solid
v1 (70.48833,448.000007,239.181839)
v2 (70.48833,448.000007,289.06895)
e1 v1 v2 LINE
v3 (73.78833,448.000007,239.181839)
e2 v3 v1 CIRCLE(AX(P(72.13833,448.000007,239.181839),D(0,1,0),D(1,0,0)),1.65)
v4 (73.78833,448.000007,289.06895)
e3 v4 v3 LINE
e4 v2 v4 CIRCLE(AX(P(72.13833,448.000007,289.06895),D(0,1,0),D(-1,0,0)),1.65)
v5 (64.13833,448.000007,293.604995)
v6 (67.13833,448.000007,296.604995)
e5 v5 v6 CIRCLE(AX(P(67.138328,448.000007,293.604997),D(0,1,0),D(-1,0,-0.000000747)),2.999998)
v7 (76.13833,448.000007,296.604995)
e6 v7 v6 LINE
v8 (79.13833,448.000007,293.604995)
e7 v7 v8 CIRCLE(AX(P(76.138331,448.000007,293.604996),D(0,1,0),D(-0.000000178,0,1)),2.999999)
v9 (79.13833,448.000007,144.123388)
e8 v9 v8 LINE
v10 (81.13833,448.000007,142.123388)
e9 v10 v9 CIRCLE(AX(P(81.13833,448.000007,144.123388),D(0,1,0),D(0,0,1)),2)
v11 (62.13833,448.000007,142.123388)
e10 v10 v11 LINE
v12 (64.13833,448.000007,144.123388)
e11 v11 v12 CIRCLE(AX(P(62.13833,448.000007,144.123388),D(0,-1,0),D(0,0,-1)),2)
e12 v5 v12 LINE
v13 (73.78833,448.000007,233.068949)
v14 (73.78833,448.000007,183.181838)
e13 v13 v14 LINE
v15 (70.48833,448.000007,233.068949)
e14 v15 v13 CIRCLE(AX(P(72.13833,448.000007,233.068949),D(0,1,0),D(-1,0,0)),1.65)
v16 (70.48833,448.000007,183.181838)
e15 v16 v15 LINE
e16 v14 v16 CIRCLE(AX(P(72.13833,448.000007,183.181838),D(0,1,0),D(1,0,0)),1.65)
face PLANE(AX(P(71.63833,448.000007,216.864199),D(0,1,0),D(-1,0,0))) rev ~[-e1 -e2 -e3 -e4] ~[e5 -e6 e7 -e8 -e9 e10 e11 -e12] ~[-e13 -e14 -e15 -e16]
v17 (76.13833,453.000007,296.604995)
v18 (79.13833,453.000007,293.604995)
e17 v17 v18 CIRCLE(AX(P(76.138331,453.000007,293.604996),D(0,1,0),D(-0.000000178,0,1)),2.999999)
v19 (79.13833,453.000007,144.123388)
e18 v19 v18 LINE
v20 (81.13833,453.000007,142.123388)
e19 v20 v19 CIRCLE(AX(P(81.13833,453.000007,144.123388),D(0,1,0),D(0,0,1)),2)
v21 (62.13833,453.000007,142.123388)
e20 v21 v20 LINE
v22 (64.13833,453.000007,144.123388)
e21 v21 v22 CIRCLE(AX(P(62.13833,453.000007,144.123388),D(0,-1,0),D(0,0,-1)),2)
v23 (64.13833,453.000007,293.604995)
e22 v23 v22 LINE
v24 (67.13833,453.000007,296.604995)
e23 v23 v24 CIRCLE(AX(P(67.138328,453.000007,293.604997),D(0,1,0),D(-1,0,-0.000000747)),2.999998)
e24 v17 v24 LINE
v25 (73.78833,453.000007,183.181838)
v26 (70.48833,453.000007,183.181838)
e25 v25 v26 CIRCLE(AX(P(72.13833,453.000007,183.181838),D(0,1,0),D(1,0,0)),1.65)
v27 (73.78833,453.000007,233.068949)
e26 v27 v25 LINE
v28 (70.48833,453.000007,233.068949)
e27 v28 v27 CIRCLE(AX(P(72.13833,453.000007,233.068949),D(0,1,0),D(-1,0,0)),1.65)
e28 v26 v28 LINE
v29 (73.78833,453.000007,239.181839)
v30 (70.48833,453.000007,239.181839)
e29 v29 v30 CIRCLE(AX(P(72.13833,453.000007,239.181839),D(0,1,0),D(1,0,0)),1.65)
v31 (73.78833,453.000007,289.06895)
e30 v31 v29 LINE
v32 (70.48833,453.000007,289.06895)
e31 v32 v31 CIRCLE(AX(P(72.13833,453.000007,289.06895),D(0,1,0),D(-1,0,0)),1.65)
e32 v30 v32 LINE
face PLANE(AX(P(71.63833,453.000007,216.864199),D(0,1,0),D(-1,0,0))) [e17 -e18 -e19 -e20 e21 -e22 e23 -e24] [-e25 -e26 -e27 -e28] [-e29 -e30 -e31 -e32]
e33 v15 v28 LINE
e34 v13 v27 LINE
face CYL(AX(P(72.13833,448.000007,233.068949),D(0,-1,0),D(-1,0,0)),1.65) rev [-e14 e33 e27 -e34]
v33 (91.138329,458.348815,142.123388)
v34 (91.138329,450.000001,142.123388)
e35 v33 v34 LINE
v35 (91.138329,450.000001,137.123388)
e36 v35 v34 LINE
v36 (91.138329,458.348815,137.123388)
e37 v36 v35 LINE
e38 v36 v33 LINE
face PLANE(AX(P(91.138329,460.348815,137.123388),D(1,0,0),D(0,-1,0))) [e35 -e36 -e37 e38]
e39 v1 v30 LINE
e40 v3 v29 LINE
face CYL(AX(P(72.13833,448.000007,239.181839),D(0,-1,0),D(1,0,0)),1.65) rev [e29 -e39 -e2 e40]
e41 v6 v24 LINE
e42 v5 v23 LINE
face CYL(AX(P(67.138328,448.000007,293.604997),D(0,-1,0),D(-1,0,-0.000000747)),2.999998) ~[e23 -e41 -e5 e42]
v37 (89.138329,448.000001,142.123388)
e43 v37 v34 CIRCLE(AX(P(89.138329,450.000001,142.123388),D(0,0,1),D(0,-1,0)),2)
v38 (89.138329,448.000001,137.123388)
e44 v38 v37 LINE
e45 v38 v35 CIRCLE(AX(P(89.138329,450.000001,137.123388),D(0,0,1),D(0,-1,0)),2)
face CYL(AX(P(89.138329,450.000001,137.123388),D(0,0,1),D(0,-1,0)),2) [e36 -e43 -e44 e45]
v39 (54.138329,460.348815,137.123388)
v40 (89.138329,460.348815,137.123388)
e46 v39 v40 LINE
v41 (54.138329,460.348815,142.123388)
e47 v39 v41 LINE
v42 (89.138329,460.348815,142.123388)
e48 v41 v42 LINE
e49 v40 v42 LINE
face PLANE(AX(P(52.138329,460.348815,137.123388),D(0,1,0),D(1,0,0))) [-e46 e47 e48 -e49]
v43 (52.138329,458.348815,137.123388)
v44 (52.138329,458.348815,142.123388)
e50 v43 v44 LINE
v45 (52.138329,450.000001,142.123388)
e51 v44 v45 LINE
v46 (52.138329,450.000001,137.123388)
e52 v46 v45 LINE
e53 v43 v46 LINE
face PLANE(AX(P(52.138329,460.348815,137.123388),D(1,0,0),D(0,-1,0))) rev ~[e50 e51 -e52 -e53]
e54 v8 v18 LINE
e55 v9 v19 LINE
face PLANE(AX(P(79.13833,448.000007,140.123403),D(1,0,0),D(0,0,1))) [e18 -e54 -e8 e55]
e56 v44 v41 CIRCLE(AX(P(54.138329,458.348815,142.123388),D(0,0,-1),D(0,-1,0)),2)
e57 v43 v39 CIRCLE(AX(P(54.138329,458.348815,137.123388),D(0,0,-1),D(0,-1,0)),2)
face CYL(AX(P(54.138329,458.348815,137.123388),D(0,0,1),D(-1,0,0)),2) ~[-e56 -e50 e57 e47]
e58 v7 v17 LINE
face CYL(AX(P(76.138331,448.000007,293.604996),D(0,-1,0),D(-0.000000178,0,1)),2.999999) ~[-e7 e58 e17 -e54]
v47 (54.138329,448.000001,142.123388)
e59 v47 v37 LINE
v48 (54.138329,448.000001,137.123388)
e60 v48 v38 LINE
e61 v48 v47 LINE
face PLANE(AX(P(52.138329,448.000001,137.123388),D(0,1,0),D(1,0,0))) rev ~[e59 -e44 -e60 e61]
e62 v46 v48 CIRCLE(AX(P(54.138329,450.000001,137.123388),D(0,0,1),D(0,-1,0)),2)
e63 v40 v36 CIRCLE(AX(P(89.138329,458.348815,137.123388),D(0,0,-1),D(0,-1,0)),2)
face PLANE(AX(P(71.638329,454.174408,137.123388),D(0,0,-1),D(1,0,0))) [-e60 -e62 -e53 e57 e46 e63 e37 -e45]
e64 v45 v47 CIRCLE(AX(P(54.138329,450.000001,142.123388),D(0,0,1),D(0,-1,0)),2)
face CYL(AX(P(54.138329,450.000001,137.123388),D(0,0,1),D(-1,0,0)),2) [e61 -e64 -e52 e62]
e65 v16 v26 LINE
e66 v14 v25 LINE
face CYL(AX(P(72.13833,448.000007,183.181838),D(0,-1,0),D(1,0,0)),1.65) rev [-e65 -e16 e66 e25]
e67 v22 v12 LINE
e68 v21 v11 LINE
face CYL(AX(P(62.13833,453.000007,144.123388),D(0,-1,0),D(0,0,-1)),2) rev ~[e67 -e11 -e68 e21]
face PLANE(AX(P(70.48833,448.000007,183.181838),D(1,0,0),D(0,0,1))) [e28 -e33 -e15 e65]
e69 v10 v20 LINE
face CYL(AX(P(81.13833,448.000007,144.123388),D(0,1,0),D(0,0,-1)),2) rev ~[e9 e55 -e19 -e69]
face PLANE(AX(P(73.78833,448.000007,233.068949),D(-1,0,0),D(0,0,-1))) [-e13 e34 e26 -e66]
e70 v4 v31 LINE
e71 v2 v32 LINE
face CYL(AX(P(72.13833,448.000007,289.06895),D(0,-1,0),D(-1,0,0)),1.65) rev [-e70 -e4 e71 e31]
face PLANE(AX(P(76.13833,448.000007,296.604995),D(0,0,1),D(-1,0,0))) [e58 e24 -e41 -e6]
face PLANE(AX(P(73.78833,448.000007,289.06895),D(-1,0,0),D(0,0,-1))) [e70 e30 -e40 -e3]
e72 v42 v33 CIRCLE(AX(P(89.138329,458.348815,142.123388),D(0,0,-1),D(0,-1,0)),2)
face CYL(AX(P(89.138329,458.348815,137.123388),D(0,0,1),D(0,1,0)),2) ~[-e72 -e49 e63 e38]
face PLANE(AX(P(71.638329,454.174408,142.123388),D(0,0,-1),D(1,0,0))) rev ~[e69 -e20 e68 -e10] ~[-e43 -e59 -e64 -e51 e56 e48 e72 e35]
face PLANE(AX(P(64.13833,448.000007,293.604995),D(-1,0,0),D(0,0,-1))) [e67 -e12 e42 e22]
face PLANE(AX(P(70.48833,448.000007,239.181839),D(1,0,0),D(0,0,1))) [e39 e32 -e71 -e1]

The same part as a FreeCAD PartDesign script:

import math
import FreeCAD as App
import Part
import Sketcher


def edges_at(feature, points):
    """Names of the edges that pass closest to the given points."""
    edges = feature.Shape.Edges
    near = lambda p: min(range(len(edges)), key=lambda i: edges[i].distToShape(Part.Vertex(*p))[0])
    return sorted({f"Edge{near(p) + 1}" for p in points})

doc = App.newDocument("Part")
params = doc.addObject("Spreadsheet::Sheet", "Params")
for row, (alias, value) in enumerate([
    ("sketch1_radius", "2.999999 mm"),
    ("sketch1_width", "9 mm"),
    ("sketch1_radius2", "1.65 mm"),
    ("pad1_length", "5 mm"),
    ("sketch2_width", "39 mm"),
    ("pad2_length", "5 mm"),
    ("fillet_radius", "2 mm"),
    ("fillet2_radius", "2 mm"),
], start=1):
    params.set(f"A{row}", alias)
    params.set(f"B{row}", "=" + value)
    params.setAlias(f"B{row}", alias)

body = doc.addObject("PartDesign::Body", "Body")

# Sketch on XZ plane
sketch1 = doc.addObject("Sketcher::SketchObject", "Sketch")
body.addObject(sketch1)
sketch1.AttachmentSupport = (doc.XZ_Plane, [""])
sketch1.MapMode = "FlatFace"
sketch1.AttachmentOffset = App.Placement(App.Vector(0, 0, -448.000007), App.Rotation())
sketch1.addGeometry([
    Part.ArcOfCircle(Part.Circle(App.Vector(76.138331, 293.604996, 0), App.Vector(0, 0, 1), 2.999999), math.radians(-0.00001), math.radians(90.00001)),  # 0
    Part.LineSegment(App.Vector(79.13833, 293.604995, 0), App.Vector(79.13833, 140.123403, 0)),  # 1
    Part.ArcOfCircle(Part.Circle(App.Vector(76.138331, 140.123402, 0), App.Vector(0, 0, 1), 2.999999), math.radians(-90.00001), math.radians(0.00001)),  # 2
    Part.LineSegment(App.Vector(76.13833, 137.123403, 0), App.Vector(67.13833, 137.123403, 0)),  # 3
    Part.ArcOfCircle(Part.Circle(App.Vector(67.138328, 140.123401, 0), App.Vector(0, 0, 1), 2.999998), math.radians(179.999957), math.radians(270.000043)),  # 4
    Part.LineSegment(App.Vector(64.13833, 140.123403, 0), App.Vector(64.13833, 293.604995, 0)),  # 5
    Part.ArcOfCircle(Part.Circle(App.Vector(67.138328, 293.604997, 0), App.Vector(0, 0, 1), 2.999998), math.radians(89.999957), math.radians(180.000043)),  # 6
    Part.LineSegment(App.Vector(67.13833, 296.604995, 0), App.Vector(76.13833, 296.604995, 0)),  # 7
    Part.ArcOfCircle(Part.Circle(App.Vector(72.13833, 233.068949, 0), App.Vector(0, 0, 1), 1.65), math.radians(0), math.radians(180)),  # 8
    Part.LineSegment(App.Vector(70.48833, 233.068949, 0), App.Vector(70.48833, 183.181838, 0)),  # 9
    Part.ArcOfCircle(Part.Circle(App.Vector(72.13833, 183.181838, 0), App.Vector(0, 0, 1), 1.65), math.radians(180), math.radians(360)),  # 10
    Part.LineSegment(App.Vector(73.78833, 183.181838, 0), App.Vector(73.78833, 233.068949, 0)),  # 11
    Part.ArcOfCircle(Part.Circle(App.Vector(72.13833, 289.06895, 0), App.Vector(0, 0, 1), 1.65), math.radians(0), math.radians(180)),  # 12
    Part.LineSegment(App.Vector(70.48833, 289.06895, 0), App.Vector(70.48833, 239.181839, 0)),  # 13
    Part.ArcOfCircle(Part.Circle(App.Vector(72.13833, 239.181839, 0), App.Vector(0, 0, 1), 1.65), math.radians(180), math.radians(360)),  # 14
    Part.LineSegment(App.Vector(73.78833, 239.181839, 0), App.Vector(73.78833, 289.06895, 0)),  # 15
], False)
sketch1.addConstraint([
    Sketcher.Constraint("Tangent", 0, 1, 1, 1),
    Sketcher.Constraint("Tangent", 1, 2, 2, 2),
    Sketcher.Constraint("Tangent", 2, 1, 3, 1),
    Sketcher.Constraint("Tangent", 3, 2, 4, 2),
    Sketcher.Constraint("Tangent", 4, 1, 5, 1),
    Sketcher.Constraint("Tangent", 5, 2, 6, 2),
    Sketcher.Constraint("Tangent", 6, 1, 7, 1),
    Sketcher.Constraint("Tangent", 7, 2, 0, 2),
    Sketcher.Constraint("Tangent", 8, 2, 9, 1),
    Sketcher.Constraint("Tangent", 9, 2, 10, 1),
    Sketcher.Constraint("Tangent", 10, 2, 11, 1),
    Sketcher.Constraint("Tangent", 11, 2, 8, 1),
    Sketcher.Constraint("Tangent", 12, 2, 13, 1),
    Sketcher.Constraint("Tangent", 13, 2, 14, 1),
    Sketcher.Constraint("Tangent", 14, 2, 15, 1),
    Sketcher.Constraint("Tangent", 15, 2, 12, 1),
    Sketcher.Constraint("Vertical", 1),
    Sketcher.Constraint("Horizontal", 3),
    Sketcher.Constraint("Vertical", 5),
    Sketcher.Constraint("Horizontal", 7),
    Sketcher.Constraint("Vertical", 9),
    Sketcher.Constraint("Vertical", 11),
    Sketcher.Constraint("Vertical", 13),
    Sketcher.Constraint("Vertical", 15),
    Sketcher.Constraint("Equal", 0, 2),
    Sketcher.Constraint("Equal", 2, 4),
    Sketcher.Constraint("Equal", 4, 6),
    Sketcher.Constraint("Equal", 10, 12),
    Sketcher.Constraint("Vertical", 10, 3, 12, 3),
    Sketcher.Constraint("Equal", 11, 13),
    Sketcher.Constraint("Radius", 0, 2.999999),
    Sketcher.Constraint("DistanceX", 3, 2, 3, 1, 9.0),
    Sketcher.Constraint("Radius", 8, 1.65),
    Sketcher.Constraint("DistanceX", 8, 3, 0, 3, 4.000001),
    Sketcher.Constraint("DistanceY", 8, 3, 12, 3, 56.000001),
    Sketcher.Constraint("DistanceY", 1, 2, 1, 1, 153.481592),
    Sketcher.Constraint("DistanceY", 9, 2, 9, 1, 49.887111),
    Sketcher.Constraint("DistanceY", -1, 1, 4, 3, 140.123401),
    Sketcher.Constraint("DistanceX", -1, 1, 0, 3, 76.138331),
    Sketcher.Constraint("DistanceY", -1, 1, 8, 3, 233.068949),
])
sketch1.setExpression("Constraints[30]", "Params.sketch1_radius")
sketch1.setExpression("Constraints[31]", "Params.sketch1_width")
sketch1.setExpression("Constraints[32]", "Params.sketch1_radius2")
pad1 = doc.addObject("PartDesign::Pad", "Pad")
body.addObject(pad1)
pad1.Profile = sketch1
pad1.setExpression("Length", "Params.pad1_length")
pad1.Reversed = True

# Sketch on XY plane
sketch2 = doc.addObject("Sketcher::SketchObject", "Sketch001")
body.addObject(sketch2)
sketch2.AttachmentSupport = (doc.XY_Plane, [""])
sketch2.MapMode = "FlatFace"
sketch2.AttachmentOffset = App.Placement(App.Vector(0, 0, 137.123388), App.Rotation())
sketch2.addGeometry([
    Part.LineSegment(App.Vector(52.138329, 448.000001, 0), App.Vector(52.138329, 460.348815, 0)),
    Part.LineSegment(App.Vector(52.138329, 460.348815, 0), App.Vector(91.138329, 460.348815, 0)),
    Part.LineSegment(App.Vector(91.138329, 460.348815, 0), App.Vector(91.138329, 448.000001, 0)),
    Part.LineSegment(App.Vector(91.138329, 448.000001, 0), App.Vector(52.138329, 448.000001, 0)),
], False)
sketch2.addConstraint([
    Sketcher.Constraint("Coincident", 0, 2, 1, 1),
    Sketcher.Constraint("Coincident", 1, 2, 2, 1),
    Sketcher.Constraint("Coincident", 2, 2, 3, 1),
    Sketcher.Constraint("Coincident", 3, 2, 0, 1),
    Sketcher.Constraint("Vertical", 0),
    Sketcher.Constraint("Horizontal", 1),
    Sketcher.Constraint("Vertical", 2),
    Sketcher.Constraint("Horizontal", 3),
    Sketcher.Constraint("DistanceX", 1, 1, 1, 2, 39.0),
    Sketcher.Constraint("DistanceY", -1, 1, 2, 2, 448.000001),
    Sketcher.Constraint("DistanceY", 0, 1, 0, 2, 12.348814),
    Sketcher.Constraint("DistanceX", -1, 1, 0, 2, 52.138329),
])
sketch2.setExpression("Constraints[8]", "Params.sketch2_width")
pad2 = doc.addObject("PartDesign::Pad", "Pad001")
body.addObject(pad2)
pad2.Profile = sketch2
pad2.setExpression("Length", "Params.pad2_length")
doc.recompute()

fillet = doc.addObject("PartDesign::Fillet", "Fillet")
body.addObject(fillet)
fillet.Base = (pad2, edges_at(pad2, [
    (52.138, 460.349, 139.623),
    (91.138, 460.349, 139.623),
    (52.138, 448, 139.623),
    (91.138, 448, 139.623),
]))
fillet.setExpression("Radius", "Params.fillet_radius")
doc.recompute()

fillet2 = doc.addObject("PartDesign::Fillet", "Fillet001")
body.addObject(fillet2)
fillet2.Base = (fillet, edges_at(fillet, [(79.138, 450.5, 142.123), (64.138, 450.5, 142.123)]))
fillet2.setExpression("Radius", "Params.fillet2_radius")

doc.recompute()
